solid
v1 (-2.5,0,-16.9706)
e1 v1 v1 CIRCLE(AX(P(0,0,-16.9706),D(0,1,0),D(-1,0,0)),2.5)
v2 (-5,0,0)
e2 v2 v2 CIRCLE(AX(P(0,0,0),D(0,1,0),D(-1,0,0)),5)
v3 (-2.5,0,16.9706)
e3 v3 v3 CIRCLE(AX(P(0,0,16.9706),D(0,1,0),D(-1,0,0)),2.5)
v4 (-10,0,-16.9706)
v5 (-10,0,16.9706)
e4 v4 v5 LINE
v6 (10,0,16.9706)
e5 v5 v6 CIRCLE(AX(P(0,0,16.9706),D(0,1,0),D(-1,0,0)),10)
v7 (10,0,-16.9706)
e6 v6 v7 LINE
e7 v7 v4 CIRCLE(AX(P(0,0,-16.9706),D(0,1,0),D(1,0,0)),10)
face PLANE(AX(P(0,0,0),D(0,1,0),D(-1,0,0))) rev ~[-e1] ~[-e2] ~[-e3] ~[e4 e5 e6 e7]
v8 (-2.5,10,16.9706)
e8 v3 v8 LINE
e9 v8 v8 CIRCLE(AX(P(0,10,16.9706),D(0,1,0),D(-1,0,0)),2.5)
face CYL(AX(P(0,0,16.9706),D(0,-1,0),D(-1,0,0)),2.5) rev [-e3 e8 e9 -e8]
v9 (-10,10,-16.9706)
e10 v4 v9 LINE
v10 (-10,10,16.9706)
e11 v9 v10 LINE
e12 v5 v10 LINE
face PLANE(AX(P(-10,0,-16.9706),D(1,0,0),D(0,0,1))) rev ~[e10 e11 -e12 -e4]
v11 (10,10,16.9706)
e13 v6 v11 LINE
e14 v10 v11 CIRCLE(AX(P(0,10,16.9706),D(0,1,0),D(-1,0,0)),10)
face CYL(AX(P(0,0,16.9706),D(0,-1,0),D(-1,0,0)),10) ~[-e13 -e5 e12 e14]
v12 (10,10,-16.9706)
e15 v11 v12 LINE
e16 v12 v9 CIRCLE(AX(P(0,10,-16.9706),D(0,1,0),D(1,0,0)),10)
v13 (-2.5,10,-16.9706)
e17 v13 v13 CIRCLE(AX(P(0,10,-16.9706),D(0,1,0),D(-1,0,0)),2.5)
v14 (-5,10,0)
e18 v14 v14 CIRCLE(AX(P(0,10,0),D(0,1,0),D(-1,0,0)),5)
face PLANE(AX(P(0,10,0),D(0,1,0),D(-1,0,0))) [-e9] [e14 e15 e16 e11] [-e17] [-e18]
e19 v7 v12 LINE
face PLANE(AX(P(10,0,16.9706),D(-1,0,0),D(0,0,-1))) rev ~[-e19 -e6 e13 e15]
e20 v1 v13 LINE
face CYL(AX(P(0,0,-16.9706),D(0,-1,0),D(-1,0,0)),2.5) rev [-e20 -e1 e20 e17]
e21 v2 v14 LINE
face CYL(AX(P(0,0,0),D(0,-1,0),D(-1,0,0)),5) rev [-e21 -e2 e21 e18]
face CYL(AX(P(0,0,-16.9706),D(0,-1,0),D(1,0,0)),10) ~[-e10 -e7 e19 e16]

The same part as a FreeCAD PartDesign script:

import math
import FreeCAD as App
import Part
import Sketcher
from FreeCAD import Vector
Q = App.Units.Quantity

doc = App.newDocument("Part")
body = doc.addObject("PartDesign::Body", "Body")

# Sketch on XZ plane
sketch1 = doc.addObject("Sketcher::SketchObject", "Sketch")
body.addObject(sketch1)
sketch1.AttachmentSupport = (doc.XZ_Plane, [""])
sketch1.MapMode = "FlatFace"
sketch1.addGeometry(Part.ArcOfCircle(Part.Circle(Vector(0, -17, 0), Vector(0, 0, 1), 10), math.radians(180), math.radians(360)), False)
sketch1.addGeometry(Part.LineSegment(Vector(-10, -17, 0), Vector(-10, 17, 0)), False)
sketch1.addGeometry(Part.ArcOfCircle(Part.Circle(Vector(0, 17, 0), Vector(0, 0, 1), 10), math.radians(0), math.radians(180)), False)
sketch1.addGeometry(Part.LineSegment(Vector(10, 17, 0), Vector(10, -17, 0)), False)
sketch1.addGeometry(Part.Circle(Vector(0, -17, 0), Vector(0, 0, 1), 2.5), False)
sketch1.addGeometry(Part.Circle(Vector(0, 0, 0), Vector(0, 0, 1), 5), False)
sketch1.addGeometry(Part.Circle(Vector(0, 17, 0), Vector(0, 0, 1), 2.5), False)
sketch1.addConstraint(Sketcher.Constraint("Tangent", 0, 1, 1, 1))
sketch1.addConstraint(Sketcher.Constraint("Tangent", 1, 2, 2, 2))
sketch1.addConstraint(Sketcher.Constraint("Tangent", 2, 1, 3, 1))
sketch1.addConstraint(Sketcher.Constraint("Tangent", 3, 2, 0, 2))
sketch1.addConstraint(Sketcher.Constraint("Vertical", 1))
sketch1.addConstraint(Sketcher.Constraint("Vertical", 3))
sketch1.addConstraint(Sketcher.Constraint("Coincident", 5, 3, -1, 1))
sketch1.addConstraint(Sketcher.Constraint("Coincident", 4, 3, 0, 3))
sketch1.addConstraint(Sketcher.Constraint("Coincident", 6, 3, 2, 3))
sketch1.addConstraint(Sketcher.Constraint("Equal", 4, 6))
sketch1.addConstraint(Sketcher.Constraint("Symmetric", 0, 3, 2, 3, -1, 1))
sketch1.addConstraint(Sketcher.Constraint("Diameter", 4, Q("5 mm")))
sketch1.addConstraint(Sketcher.Constraint("Diameter", 5, Q("10 mm")))
sketch1.addConstraint(Sketcher.Constraint("Radius", 0, Q("10 mm")))
sketch1.addConstraint(Sketcher.Constraint("DistanceY", 1, 1, 1, 2, Q("33.9412 mm")))
pad1 = doc.addObject("PartDesign::Pad", "Pad")
body.addObject(pad1)
pad1.Profile = sketch1
pad1.Length = 10
pad1.Reversed = True

doc.recompute()
